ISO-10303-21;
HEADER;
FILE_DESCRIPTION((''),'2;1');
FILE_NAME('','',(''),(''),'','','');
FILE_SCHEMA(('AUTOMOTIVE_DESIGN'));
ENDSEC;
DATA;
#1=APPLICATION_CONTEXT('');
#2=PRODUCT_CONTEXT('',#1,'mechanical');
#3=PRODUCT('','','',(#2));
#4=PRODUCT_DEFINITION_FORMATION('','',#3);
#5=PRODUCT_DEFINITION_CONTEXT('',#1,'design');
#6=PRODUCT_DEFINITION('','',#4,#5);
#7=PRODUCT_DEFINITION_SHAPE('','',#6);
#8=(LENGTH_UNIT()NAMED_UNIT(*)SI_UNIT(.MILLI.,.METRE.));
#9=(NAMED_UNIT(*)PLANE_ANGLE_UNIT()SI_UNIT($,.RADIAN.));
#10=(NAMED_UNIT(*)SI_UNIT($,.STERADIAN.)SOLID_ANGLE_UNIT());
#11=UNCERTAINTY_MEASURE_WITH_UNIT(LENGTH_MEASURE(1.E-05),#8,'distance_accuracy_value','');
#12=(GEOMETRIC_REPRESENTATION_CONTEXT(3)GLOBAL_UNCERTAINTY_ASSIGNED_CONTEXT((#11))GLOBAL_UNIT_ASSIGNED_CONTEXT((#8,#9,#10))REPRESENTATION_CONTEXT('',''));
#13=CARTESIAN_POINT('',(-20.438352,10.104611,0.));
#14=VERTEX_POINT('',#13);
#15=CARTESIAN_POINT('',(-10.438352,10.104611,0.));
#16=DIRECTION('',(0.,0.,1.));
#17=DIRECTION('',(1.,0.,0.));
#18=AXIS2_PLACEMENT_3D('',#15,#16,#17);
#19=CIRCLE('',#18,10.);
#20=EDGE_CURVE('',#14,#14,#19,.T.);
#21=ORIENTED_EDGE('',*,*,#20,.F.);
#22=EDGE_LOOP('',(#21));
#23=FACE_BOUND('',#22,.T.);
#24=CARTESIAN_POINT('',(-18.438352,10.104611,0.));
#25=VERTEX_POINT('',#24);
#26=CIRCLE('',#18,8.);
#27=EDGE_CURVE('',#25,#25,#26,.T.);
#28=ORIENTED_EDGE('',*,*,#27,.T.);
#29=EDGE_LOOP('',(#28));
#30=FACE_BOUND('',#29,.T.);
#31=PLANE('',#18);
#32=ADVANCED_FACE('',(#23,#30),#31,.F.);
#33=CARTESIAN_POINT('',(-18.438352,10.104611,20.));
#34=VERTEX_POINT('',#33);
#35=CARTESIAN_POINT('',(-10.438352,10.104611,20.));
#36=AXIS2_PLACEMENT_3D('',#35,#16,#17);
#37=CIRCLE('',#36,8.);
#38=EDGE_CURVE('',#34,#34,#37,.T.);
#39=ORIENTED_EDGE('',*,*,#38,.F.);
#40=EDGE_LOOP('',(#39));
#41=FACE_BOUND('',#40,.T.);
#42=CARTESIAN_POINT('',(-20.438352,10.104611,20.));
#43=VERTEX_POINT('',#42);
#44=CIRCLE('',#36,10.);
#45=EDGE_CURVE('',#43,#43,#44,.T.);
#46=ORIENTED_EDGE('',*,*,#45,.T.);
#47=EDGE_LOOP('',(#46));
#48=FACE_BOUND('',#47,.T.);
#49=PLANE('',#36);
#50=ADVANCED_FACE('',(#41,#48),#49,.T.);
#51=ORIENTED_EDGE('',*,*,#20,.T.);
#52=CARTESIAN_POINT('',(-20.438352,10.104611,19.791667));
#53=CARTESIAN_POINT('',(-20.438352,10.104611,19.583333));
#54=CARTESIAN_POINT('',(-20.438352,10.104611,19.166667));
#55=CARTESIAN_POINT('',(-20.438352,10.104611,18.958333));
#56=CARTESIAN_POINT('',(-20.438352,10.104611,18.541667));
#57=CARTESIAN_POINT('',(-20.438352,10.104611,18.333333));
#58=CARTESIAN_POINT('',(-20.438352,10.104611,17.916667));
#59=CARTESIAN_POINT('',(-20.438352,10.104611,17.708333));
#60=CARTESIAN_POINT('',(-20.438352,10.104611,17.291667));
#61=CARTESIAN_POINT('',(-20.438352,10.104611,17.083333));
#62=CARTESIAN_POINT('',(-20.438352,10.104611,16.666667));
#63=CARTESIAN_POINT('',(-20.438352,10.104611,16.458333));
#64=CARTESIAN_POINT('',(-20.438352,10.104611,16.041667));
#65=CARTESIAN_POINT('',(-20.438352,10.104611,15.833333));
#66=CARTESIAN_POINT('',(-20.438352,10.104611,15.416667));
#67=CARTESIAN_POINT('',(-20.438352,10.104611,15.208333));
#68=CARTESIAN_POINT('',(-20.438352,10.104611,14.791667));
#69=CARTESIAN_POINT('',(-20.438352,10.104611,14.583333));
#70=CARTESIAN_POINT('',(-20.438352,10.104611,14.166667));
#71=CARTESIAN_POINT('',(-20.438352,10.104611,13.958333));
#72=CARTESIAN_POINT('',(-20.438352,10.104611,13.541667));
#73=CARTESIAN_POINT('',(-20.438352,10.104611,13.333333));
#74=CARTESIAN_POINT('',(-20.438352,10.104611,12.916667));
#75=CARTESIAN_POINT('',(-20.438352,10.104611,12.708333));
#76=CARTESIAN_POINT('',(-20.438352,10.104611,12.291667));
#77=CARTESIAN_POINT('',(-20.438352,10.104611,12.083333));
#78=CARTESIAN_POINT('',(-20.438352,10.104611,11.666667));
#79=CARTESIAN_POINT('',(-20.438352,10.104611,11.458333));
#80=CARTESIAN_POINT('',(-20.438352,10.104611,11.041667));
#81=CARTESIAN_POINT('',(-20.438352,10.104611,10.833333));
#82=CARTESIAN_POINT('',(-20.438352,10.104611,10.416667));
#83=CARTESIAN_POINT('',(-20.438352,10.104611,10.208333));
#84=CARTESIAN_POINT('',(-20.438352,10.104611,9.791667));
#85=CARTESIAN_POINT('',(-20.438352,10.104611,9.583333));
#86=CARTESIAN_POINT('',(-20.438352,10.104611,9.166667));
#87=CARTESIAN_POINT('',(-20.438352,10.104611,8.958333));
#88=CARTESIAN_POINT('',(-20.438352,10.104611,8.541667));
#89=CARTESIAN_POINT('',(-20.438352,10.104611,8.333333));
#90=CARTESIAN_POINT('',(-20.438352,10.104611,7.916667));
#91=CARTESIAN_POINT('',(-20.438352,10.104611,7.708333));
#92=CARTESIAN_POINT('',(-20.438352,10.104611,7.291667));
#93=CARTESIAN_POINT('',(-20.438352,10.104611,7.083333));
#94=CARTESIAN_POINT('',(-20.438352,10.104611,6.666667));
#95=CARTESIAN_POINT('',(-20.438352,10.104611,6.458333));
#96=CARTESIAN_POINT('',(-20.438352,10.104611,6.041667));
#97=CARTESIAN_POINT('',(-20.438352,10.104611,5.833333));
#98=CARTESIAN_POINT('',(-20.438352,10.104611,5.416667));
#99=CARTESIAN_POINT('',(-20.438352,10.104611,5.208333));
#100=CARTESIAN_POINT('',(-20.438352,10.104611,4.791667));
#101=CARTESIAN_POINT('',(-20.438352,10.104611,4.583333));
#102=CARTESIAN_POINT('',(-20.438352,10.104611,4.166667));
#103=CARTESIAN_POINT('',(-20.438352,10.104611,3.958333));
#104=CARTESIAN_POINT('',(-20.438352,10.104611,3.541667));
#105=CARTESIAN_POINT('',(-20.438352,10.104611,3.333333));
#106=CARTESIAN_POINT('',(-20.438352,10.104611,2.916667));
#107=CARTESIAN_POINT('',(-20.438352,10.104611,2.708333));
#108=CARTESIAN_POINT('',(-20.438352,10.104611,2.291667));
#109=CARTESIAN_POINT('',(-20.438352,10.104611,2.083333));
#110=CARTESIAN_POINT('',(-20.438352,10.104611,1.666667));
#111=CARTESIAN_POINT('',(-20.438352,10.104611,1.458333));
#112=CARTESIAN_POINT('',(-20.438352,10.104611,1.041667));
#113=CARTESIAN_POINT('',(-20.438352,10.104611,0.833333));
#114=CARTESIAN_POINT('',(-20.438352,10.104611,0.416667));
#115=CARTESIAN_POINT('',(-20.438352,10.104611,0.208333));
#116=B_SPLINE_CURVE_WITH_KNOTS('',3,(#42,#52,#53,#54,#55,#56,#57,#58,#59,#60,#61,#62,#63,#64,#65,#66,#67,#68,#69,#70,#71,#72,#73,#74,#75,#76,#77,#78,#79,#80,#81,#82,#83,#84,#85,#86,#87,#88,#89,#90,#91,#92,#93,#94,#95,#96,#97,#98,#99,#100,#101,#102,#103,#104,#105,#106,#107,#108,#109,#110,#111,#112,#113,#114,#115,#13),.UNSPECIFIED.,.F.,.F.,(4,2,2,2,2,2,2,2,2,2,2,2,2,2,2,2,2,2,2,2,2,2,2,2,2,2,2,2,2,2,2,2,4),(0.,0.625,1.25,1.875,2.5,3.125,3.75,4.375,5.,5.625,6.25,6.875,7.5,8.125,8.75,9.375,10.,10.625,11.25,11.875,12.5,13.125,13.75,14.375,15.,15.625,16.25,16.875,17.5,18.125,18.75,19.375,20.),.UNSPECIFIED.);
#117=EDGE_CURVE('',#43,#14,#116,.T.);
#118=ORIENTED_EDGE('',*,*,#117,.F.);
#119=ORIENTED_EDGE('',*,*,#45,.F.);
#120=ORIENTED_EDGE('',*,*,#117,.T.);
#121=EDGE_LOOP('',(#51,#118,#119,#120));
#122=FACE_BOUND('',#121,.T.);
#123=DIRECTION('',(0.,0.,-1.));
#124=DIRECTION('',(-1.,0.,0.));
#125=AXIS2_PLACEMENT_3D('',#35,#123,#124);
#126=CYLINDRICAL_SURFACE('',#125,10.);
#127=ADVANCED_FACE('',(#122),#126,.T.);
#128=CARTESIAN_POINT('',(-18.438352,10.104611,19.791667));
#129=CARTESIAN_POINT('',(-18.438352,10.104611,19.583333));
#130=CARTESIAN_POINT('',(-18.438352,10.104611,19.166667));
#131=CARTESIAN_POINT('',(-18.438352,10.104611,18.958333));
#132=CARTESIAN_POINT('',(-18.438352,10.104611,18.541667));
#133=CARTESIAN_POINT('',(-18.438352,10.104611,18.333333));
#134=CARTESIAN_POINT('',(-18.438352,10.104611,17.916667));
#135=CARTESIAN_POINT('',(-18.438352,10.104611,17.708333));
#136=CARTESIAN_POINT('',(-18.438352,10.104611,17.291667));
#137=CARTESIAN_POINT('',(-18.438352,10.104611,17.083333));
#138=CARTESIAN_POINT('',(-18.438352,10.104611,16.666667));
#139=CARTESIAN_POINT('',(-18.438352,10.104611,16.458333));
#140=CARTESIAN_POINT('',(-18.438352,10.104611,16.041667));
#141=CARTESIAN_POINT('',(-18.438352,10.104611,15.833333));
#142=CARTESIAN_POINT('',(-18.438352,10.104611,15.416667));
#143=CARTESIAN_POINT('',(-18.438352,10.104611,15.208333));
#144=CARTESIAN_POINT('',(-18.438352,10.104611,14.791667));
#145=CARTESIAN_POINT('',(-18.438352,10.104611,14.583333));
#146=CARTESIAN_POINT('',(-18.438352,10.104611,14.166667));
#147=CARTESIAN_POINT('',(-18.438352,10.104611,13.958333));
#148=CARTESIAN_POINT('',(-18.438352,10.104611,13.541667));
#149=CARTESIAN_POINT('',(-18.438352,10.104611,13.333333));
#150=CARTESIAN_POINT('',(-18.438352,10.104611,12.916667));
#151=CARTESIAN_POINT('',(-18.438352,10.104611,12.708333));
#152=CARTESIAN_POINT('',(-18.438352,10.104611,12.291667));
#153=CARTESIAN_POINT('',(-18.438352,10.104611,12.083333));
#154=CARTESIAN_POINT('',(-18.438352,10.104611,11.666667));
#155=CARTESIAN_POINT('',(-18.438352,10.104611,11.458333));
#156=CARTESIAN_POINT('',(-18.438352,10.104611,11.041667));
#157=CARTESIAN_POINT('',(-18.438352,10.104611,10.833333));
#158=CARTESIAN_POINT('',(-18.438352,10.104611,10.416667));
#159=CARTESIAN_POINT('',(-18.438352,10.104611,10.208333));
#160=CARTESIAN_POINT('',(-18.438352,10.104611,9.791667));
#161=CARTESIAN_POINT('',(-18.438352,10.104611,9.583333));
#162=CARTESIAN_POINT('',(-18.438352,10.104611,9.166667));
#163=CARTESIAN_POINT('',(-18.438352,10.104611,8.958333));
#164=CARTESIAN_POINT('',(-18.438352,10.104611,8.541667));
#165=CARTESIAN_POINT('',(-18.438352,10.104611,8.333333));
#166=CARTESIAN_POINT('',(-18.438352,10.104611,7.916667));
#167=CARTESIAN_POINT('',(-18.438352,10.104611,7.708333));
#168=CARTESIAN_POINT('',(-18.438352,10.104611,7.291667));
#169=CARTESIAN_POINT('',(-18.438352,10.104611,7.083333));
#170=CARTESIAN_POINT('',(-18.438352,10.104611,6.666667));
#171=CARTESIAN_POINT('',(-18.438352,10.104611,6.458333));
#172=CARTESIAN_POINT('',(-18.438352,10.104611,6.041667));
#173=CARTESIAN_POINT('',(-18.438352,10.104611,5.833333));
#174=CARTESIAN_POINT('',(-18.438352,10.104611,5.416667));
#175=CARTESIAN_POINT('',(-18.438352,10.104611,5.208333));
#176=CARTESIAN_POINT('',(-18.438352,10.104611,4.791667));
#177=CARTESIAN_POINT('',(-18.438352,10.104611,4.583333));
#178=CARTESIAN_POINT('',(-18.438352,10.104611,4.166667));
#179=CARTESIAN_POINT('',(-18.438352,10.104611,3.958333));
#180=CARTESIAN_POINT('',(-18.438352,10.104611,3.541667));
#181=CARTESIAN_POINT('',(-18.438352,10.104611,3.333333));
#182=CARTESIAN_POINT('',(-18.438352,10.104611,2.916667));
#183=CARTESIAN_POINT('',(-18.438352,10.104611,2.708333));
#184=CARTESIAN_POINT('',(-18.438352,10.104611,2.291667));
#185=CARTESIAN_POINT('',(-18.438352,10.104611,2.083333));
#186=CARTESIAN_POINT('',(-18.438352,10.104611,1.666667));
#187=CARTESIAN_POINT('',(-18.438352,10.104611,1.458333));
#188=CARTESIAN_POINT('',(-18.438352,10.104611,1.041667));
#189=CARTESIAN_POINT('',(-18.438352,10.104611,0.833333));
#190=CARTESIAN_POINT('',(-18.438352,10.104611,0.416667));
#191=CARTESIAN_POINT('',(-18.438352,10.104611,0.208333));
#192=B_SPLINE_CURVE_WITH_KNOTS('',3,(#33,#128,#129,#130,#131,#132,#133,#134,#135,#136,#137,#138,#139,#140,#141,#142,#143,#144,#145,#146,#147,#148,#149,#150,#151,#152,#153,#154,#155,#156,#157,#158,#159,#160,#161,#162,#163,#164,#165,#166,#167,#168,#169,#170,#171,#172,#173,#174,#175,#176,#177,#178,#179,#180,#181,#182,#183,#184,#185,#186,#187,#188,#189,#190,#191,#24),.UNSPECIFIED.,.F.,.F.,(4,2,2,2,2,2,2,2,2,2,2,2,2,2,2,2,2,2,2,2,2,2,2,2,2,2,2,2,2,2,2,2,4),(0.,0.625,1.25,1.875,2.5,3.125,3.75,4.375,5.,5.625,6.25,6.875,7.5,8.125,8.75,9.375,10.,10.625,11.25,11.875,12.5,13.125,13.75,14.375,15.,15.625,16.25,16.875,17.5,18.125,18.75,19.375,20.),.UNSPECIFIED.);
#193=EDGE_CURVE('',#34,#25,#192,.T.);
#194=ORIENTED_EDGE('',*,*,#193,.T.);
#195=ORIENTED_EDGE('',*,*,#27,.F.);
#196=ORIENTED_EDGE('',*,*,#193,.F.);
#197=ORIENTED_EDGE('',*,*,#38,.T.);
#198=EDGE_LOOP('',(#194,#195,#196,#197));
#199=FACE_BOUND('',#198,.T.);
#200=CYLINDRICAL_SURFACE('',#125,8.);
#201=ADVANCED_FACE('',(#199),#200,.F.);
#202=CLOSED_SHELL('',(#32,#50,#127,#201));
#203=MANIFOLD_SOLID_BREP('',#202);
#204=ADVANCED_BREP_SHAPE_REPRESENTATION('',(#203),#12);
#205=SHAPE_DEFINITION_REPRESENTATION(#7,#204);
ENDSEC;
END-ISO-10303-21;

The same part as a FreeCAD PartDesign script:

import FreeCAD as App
import Part
import Sketcher
from FreeCAD import Vector

doc = App.newDocument("Part")
params = doc.addObject("Spreadsheet::Sheet", "Params")
for row, (alias, value) in enumerate([
    ("sketch1_diameter", "20 mm"),
    ("sketch1_diameter2", "16 mm"),
    ("pad1_length", "20 mm"),
], start=1):
    params.set(f"A{row}", alias)
    params.set(f"B{row}", "=" + value)
    params.setAlias(f"B{row}", alias)

body = doc.addObject("PartDesign::Body", "Body")

# Sketch on XY plane
sketch1 = body.newObject("Sketcher::SketchObject", "Sketch")
sketch1.AttachmentSupport = (doc.getObject("XY_Plane"), [""])
sketch1.MapMode = "FlatFace"
sketch1.addGeometry([
    Part.Circle(Vector(-10, 10, 0), Vector(0, 0, 1), 10),
    Part.Circle(Vector(-10, 10, 0), Vector(0, 0, 1), 8),
], False)
sketch1.addConstraint([
    Sketcher.Constraint("Coincident", 1, 3, 0, 3),
    Sketcher.Constraint("Diameter", 0, 20.0),
    Sketcher.Constraint("Diameter", 1, 16.0),
    Sketcher.Constraint("DistanceX", 0, 3, -1, 1, 10.438352),
    Sketcher.Constraint("DistanceY", -1, 1, 0, 3, 10.104611),
])
sketch1.setExpression("Constraints[1]", "Params.sketch1_diameter")
sketch1.setExpression("Constraints[2]", "Params.sketch1_diameter2")
pad1 = body.newObject("PartDesign::Pad", "Pad")
pad1.Profile = sketch1
pad1.setExpression("Length", "Params.pad1_length")

doc.recompute()
